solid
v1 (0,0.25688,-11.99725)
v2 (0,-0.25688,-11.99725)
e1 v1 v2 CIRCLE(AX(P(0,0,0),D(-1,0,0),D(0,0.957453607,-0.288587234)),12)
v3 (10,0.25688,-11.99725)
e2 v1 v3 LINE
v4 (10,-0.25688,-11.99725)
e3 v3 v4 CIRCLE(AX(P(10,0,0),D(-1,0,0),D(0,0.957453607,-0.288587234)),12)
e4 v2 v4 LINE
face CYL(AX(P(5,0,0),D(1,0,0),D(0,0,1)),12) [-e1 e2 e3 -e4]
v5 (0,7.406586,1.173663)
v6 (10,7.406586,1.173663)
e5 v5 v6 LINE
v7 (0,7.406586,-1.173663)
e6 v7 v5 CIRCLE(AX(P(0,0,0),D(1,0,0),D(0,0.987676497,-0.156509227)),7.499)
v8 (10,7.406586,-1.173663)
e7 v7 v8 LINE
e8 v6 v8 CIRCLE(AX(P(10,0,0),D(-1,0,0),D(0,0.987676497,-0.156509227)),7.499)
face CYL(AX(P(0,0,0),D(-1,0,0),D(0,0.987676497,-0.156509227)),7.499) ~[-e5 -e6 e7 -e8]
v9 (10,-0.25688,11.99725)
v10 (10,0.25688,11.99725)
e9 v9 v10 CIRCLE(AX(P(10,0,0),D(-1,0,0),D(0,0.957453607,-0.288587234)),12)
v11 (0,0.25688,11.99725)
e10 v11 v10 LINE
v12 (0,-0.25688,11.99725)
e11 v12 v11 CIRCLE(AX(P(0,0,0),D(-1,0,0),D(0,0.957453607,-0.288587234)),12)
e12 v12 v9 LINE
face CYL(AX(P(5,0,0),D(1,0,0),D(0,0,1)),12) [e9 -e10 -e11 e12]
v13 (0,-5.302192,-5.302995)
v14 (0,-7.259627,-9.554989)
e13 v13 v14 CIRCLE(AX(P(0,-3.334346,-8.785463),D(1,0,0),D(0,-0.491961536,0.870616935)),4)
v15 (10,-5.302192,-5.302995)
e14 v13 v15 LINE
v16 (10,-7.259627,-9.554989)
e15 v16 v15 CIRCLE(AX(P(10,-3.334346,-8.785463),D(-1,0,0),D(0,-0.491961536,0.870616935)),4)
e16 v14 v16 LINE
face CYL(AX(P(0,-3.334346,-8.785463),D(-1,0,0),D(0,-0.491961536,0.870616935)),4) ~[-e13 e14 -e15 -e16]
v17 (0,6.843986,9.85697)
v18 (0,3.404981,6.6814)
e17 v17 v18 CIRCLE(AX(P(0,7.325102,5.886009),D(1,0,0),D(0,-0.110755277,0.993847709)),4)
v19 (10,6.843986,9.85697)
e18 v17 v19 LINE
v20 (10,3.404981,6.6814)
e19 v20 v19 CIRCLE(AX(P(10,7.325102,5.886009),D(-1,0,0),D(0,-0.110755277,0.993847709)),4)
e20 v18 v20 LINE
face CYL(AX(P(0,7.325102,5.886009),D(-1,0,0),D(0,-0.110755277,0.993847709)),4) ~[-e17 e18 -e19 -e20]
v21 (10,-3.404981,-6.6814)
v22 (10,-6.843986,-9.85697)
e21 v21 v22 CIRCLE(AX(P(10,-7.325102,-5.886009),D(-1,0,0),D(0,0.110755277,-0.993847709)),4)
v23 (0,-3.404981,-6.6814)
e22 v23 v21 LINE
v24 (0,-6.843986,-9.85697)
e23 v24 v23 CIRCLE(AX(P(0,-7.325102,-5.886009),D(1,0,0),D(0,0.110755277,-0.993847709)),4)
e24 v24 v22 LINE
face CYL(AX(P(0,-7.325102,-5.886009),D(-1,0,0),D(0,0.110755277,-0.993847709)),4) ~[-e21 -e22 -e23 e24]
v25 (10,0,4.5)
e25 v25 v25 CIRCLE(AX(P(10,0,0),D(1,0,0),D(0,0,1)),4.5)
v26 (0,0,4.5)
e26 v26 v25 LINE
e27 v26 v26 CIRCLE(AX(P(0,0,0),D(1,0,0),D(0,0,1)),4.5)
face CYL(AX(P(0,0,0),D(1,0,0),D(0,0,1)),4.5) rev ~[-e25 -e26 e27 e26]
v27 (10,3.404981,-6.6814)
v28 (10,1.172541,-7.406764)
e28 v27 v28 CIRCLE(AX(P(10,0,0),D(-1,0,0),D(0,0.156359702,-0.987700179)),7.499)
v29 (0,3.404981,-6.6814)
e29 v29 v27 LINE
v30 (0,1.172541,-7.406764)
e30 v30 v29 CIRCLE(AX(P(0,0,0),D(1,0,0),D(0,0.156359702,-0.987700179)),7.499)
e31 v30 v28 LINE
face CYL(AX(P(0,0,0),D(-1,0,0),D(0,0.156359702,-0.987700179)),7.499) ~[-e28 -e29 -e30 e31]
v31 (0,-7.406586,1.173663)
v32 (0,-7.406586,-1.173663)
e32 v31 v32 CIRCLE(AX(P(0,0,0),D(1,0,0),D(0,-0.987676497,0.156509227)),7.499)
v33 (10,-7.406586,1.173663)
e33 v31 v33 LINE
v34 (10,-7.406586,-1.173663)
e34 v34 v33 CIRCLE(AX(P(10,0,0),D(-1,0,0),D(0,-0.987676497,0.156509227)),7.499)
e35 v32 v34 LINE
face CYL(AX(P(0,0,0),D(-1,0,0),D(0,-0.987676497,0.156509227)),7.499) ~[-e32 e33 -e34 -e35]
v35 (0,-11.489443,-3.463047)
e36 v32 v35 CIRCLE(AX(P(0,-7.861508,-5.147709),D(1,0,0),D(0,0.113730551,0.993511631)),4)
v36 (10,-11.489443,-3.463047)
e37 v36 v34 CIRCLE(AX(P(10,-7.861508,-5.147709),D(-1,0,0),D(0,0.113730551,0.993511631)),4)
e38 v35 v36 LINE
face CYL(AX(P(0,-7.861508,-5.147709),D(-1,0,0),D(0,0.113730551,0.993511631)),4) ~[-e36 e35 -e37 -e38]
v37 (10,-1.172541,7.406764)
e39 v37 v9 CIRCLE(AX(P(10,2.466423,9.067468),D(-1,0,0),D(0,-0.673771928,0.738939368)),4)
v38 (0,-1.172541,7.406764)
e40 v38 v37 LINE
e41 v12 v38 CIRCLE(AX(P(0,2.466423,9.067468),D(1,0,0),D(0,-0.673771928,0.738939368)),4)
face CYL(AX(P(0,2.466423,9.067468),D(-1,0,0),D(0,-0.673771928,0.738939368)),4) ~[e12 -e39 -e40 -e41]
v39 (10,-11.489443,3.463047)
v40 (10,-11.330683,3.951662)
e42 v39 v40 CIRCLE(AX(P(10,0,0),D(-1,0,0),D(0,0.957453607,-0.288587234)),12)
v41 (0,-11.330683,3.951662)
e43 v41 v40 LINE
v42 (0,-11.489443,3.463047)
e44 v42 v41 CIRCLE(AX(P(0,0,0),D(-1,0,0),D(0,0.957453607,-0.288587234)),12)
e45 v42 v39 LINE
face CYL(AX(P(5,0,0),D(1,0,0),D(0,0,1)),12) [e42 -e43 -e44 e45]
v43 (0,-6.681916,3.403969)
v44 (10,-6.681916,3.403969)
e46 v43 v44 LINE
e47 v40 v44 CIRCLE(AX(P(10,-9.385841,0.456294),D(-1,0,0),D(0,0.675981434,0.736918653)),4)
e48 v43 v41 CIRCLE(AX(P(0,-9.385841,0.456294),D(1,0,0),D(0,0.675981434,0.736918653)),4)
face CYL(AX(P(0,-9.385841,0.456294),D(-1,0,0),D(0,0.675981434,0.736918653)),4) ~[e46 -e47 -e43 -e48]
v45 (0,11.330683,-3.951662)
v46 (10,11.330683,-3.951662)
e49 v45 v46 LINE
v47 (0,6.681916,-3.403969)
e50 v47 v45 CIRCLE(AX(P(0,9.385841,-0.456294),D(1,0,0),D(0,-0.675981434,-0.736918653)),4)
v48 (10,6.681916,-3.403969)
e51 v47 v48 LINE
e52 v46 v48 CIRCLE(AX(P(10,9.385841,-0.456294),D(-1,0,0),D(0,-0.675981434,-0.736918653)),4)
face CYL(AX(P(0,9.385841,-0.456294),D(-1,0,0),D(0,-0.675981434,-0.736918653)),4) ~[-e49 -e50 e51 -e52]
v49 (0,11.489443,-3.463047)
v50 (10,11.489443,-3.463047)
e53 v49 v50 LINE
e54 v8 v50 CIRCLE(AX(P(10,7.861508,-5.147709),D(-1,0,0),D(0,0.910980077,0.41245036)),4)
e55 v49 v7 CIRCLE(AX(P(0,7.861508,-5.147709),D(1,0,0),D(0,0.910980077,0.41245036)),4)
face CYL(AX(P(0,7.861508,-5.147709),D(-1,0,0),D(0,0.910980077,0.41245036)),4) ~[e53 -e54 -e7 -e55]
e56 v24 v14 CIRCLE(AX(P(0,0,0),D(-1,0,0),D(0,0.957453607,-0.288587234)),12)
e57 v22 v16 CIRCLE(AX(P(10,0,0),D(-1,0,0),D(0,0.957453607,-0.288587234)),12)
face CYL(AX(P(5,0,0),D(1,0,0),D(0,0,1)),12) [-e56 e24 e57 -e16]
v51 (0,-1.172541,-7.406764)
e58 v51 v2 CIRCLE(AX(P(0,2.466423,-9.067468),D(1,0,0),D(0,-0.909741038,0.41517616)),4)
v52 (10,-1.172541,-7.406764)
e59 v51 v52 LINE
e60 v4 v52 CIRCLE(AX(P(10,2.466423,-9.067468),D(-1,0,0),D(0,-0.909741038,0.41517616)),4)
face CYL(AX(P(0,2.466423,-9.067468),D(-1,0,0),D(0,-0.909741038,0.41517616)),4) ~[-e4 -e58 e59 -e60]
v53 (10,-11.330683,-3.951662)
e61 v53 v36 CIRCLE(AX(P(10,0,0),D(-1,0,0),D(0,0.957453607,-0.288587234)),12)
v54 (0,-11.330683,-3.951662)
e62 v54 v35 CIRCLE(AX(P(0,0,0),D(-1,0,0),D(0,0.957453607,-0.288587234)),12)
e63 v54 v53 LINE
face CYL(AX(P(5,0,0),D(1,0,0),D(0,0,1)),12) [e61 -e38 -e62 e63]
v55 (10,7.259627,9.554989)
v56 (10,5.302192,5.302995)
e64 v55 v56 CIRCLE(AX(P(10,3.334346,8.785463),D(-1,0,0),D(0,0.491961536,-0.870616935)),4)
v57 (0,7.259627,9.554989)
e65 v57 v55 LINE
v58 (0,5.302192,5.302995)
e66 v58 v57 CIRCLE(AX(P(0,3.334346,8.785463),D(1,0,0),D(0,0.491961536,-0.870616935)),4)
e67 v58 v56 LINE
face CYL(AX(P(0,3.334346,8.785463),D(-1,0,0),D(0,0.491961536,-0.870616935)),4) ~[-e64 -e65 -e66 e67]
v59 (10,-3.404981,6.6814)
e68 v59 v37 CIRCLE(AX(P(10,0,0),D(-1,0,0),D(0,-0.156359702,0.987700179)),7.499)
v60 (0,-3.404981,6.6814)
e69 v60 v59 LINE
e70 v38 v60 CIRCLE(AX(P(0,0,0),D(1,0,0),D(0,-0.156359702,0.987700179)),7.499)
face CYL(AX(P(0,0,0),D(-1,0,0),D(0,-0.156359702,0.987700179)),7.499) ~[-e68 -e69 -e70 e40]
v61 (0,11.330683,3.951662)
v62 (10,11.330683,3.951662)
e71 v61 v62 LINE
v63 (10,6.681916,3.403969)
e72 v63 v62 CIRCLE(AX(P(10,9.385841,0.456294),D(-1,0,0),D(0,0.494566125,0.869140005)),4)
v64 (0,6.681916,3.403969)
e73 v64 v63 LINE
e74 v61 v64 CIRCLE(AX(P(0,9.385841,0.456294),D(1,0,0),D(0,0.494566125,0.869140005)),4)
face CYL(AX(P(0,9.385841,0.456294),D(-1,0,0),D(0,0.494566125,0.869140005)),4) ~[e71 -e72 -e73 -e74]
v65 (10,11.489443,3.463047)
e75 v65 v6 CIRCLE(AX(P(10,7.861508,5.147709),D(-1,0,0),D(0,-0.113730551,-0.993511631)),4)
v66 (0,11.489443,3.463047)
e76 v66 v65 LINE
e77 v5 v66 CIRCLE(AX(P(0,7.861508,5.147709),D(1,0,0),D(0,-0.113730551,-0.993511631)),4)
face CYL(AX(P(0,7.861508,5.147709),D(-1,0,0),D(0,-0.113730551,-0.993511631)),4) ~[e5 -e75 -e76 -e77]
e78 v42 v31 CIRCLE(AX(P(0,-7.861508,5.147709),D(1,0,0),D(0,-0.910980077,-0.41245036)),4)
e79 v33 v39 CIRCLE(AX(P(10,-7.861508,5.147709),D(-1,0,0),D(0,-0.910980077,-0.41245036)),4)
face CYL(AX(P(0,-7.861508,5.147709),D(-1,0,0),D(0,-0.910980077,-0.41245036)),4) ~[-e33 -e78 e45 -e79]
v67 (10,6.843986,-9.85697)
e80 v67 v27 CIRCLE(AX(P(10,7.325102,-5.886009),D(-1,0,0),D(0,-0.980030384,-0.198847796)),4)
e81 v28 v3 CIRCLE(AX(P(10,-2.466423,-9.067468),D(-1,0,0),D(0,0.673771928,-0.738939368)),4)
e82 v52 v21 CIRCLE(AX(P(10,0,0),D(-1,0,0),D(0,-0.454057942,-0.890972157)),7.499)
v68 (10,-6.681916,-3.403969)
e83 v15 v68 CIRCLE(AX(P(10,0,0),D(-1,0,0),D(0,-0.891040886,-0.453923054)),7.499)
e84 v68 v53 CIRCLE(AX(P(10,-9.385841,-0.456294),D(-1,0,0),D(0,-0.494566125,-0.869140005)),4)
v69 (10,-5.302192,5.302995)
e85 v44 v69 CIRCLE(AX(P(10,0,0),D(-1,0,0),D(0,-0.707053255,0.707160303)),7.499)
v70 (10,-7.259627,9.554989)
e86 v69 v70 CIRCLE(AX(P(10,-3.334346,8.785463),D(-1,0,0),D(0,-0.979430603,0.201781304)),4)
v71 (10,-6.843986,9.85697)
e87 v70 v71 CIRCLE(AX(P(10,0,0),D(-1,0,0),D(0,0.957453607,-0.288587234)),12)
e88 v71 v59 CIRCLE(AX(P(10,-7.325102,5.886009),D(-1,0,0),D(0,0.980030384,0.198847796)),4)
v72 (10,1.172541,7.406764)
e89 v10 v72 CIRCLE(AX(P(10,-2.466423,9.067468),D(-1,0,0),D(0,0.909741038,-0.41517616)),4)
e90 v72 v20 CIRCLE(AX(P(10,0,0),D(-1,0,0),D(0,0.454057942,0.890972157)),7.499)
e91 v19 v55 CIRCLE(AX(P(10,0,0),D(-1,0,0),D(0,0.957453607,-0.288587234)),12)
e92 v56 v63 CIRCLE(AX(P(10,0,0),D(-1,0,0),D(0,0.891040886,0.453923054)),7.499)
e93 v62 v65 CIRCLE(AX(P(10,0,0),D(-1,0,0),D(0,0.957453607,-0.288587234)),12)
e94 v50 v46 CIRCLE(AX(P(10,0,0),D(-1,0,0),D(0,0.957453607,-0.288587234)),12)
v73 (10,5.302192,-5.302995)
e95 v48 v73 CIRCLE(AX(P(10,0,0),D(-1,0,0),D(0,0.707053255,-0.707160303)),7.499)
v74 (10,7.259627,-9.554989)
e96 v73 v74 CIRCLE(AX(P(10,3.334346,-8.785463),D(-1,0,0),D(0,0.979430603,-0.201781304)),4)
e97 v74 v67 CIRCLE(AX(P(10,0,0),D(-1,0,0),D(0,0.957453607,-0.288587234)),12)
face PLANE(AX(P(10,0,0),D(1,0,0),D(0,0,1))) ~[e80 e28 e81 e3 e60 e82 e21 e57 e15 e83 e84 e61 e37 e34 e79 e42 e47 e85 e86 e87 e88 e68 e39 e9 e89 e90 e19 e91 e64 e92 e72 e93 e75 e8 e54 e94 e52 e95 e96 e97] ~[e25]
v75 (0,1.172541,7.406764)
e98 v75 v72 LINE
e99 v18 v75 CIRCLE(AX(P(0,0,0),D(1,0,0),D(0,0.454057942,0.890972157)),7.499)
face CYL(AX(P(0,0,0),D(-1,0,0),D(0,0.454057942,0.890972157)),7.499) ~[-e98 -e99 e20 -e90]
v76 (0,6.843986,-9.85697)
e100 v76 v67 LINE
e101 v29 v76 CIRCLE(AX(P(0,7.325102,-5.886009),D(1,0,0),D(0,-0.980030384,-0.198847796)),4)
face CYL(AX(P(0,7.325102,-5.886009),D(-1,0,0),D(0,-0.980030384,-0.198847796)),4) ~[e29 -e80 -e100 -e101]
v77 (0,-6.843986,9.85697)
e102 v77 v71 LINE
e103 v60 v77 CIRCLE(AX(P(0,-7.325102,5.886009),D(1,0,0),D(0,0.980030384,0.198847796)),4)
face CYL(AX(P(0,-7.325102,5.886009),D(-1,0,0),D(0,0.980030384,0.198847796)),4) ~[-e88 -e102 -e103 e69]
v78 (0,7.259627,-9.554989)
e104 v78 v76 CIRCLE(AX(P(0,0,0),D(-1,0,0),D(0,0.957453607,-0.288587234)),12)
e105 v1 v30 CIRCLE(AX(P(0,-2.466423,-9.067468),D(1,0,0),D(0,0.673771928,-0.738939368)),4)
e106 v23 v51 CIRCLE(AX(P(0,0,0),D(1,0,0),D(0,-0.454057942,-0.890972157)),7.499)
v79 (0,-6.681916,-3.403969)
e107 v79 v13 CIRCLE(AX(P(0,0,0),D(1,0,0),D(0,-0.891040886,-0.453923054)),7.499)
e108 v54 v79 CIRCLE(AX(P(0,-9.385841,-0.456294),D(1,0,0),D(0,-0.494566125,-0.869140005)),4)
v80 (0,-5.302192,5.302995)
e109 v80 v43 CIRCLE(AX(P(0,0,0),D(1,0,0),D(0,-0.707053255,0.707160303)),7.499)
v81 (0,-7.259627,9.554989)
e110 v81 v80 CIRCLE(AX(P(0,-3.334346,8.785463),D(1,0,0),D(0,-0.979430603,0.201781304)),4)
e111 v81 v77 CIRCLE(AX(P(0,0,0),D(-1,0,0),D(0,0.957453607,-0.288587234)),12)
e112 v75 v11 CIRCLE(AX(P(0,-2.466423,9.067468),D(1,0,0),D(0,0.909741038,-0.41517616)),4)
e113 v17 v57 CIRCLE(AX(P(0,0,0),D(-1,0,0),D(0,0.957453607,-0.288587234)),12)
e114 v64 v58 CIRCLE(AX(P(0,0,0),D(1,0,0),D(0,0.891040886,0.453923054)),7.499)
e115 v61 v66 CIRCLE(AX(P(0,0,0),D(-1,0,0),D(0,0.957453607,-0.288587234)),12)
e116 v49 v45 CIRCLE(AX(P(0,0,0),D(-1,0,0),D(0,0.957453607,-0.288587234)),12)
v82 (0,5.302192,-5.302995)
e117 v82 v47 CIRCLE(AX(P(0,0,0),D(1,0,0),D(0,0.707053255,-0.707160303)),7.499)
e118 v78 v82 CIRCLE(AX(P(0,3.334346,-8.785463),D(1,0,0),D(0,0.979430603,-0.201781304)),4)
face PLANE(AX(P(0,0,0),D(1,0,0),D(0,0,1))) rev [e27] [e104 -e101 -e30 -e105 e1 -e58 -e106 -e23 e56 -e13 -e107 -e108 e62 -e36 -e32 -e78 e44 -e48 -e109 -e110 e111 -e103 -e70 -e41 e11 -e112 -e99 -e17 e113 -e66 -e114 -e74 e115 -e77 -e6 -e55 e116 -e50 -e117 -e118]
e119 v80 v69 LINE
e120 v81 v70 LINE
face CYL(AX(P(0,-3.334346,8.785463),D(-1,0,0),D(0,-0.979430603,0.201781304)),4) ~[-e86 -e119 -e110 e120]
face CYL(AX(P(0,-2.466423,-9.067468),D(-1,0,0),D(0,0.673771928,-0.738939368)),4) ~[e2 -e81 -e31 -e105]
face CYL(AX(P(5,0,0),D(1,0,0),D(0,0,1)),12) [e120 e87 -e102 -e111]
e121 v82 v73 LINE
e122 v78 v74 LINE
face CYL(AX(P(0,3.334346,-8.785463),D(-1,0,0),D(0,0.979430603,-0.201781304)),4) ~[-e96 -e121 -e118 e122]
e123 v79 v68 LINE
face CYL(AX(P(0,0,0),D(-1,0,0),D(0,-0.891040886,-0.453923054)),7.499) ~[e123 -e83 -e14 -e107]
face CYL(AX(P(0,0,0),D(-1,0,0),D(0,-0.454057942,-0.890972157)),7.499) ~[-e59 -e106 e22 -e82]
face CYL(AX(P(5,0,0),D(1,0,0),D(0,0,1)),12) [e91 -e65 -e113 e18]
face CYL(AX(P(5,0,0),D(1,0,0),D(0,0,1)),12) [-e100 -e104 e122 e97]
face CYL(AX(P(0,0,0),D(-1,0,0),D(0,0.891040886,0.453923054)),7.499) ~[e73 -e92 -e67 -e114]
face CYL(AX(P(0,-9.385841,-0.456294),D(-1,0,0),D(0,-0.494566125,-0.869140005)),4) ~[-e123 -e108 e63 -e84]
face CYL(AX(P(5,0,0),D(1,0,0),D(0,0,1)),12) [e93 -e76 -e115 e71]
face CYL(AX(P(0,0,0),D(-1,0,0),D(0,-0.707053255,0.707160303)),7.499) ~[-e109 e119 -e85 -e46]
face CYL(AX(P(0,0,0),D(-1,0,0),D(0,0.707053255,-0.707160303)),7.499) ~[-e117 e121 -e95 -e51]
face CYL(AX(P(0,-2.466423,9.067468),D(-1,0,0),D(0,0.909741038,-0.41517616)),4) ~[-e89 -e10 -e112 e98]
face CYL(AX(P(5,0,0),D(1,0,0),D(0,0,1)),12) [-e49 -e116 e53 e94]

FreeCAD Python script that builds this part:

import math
import FreeCAD as App
import Part
import Sketcher

doc = App.newDocument("Part")
params = doc.addObject("Spreadsheet::Sheet", "Params")
for row, (alias, value) in enumerate([
    ("sketch1_width", "10 mm"),
    ("sketch1_height", "12 mm"),
    ("revolution_angle", "360 deg"),
    ("sketch2_radius", "4 mm"),
    ("sketch3_diameter", "9 mm"),
    ("pocket2_length", "100.000102 mm"),
], start=1):
    params.set(f"A{row}", alias)
    params.set(f"B{row}", "=" + value)
    params.setAlias(f"B{row}", alias)

body = doc.addObject("PartDesign::Body", "Body")

# Sketch on XZ plane
sketch1 = body.newObject("Sketcher::SketchObject", "Sketch")
sketch1.AttachmentSupport = (doc.getObject("XZ_Plane"), [""])
sketch1.MapMode = "FlatFace"
sketch1.addGeometry([
    Part.LineSegment(App.Vector(0, -12, 0), App.Vector(0, 0, 0)),
    Part.LineSegment(App.Vector(0, 0, 0), App.Vector(10, 0, 0)),
    Part.LineSegment(App.Vector(10, 0, 0), App.Vector(10, -12, 0)),
    Part.LineSegment(App.Vector(10, -12, 0), App.Vector(0, -12, 0)),
], False)
sketch1.addConstraint([
    Sketcher.Constraint("Coincident", 0, 2, 1, 1),
    Sketcher.Constraint("Coincident", 1, 2, 2, 1),
    Sketcher.Constraint("Coincident", 2, 2, 3, 1),
    Sketcher.Constraint("Coincident", 3, 2, 0, 1),
    Sketcher.Constraint("Vertical", 0),
    Sketcher.Constraint("Horizontal", 1),
    Sketcher.Constraint("Vertical", 2),
    Sketcher.Constraint("Horizontal", 3),
    Sketcher.Constraint("Coincident", 0, 2, -1, 1),
    Sketcher.Constraint("DistanceX", 1, 1, 1, 2, 10.0),
    Sketcher.Constraint("DistanceY", 0, 1, 0, 2, 12.0),
])
sketch1.setExpression("Constraints[9]", "Params.sketch1_width")
sketch1.setExpression("Constraints[10]", "Params.sketch1_height")
revolution = body.newObject("PartDesign::Revolution", "Revolution")
revolution.Profile = sketch1
revolution.ReferenceAxis = (sketch1, ["H_Axis"])
revolution.setExpression("Angle", "Params.revolution_angle")

# Sketch on YZ plane
sketch2 = body.newObject("Sketcher::SketchObject", "Sketch001")
sketch2.AttachmentSupport = (doc.getObject("YZ_Plane"), [""])
sketch2.MapMode = "FlatFace"
sketch2.addGeometry([
    Part.ArcOfCircle(Part.Circle(App.Vector(0, 0, 0), App.Vector(0, 0, 1), 7.5), math.radians(-9), math.radians(9)),
    Part.ArcOfCircle(Part.Circle(App.Vector(7.9, -5.1, 0), App.Vector(0, 0, 1), 4), math.radians(24), math.radians(97)),
    Part.ArcOfCircle(Part.Circle(App.Vector(0, 0, 0), App.Vector(0, 0, 1), 12), math.radians(-17), math.radians(17)),
    Part.ArcOfCircle(Part.Circle(App.Vector(7.9, 5.1, 0), App.Vector(0, 0, 1), 4), math.radians(-97), math.radians(-24)),
], False)
sketch2.addConstraint([
    Sketcher.Constraint("Coincident", 0, 1, 1, 2),
    Sketcher.Constraint("Coincident", 1, 1, 2, 1),
    Sketcher.Constraint("Coincident", 2, 2, 3, 2),
    Sketcher.Constraint("Coincident", 3, 1, 0, 2),
    Sketcher.Constraint("Coincident", 0, 3, -1, 1),
    Sketcher.Constraint("Coincident", 2, 3, -1, 1),
    Sketcher.Constraint("Equal", 1, 3),
    Sketcher.Constraint("Symmetric", 1, 3, 3, 3, -1),
    Sketcher.Constraint("Radius", 1, 4.0),
    Sketcher.Constraint("Radius", 0, 7.499),
    Sketcher.Constraint("Radius", 2, 12.0254),
    Sketcher.Constraint("DistanceY", 1, 3, 1, 1, 1.649801),
    Sketcher.Constraint("DistanceX", -1, 1, 1, 3, 7.861508),
])
sketch2.setExpression("Constraints[8]", "Params.sketch2_radius")
pocket1 = body.newObject("PartDesign::Pocket", "Pocket")
pocket1.Profile = sketch2
pocket1.Type = "ThroughAll"
pocket1.Reversed = True
doc.recompute()

polarpattern = body.newObject("PartDesign::PolarPattern", "PolarPattern")
polarpattern.Originals = [pocket1]
polarpattern.Axis = (doc.getObject("X_Axis"), [""])
polarpattern.Angle = 360
polarpattern.Occurrences = 10
body.Tip = polarpattern

# Sketch on YZ plane
sketch3 = body.newObject("Sketcher::SketchObject", "Sketch002")
sketch3.AttachmentSupport = (doc.getObject("YZ_Plane"), [""])
sketch3.MapMode = "FlatFace"
sketch3.addGeometry(Part.Circle(App.Vector(0, 0, 0), App.Vector(0, 0, 1), 4.5), False)
sketch3.addConstraint([
    Sketcher.Constraint("Coincident", 0, 3, -1, 1),
    Sketcher.Constraint("Diameter", 0, 9.0),
])
sketch3.setExpression("Constraints[1]", "Params.sketch3_diameter")
pocket2 = body.newObject("PartDesign::Pocket", "Pocket001")
pocket2.Profile = sketch3
pocket2.setExpression("Length", "Params.pocket2_length")
pocket2.Midplane = True

doc.recompute()
